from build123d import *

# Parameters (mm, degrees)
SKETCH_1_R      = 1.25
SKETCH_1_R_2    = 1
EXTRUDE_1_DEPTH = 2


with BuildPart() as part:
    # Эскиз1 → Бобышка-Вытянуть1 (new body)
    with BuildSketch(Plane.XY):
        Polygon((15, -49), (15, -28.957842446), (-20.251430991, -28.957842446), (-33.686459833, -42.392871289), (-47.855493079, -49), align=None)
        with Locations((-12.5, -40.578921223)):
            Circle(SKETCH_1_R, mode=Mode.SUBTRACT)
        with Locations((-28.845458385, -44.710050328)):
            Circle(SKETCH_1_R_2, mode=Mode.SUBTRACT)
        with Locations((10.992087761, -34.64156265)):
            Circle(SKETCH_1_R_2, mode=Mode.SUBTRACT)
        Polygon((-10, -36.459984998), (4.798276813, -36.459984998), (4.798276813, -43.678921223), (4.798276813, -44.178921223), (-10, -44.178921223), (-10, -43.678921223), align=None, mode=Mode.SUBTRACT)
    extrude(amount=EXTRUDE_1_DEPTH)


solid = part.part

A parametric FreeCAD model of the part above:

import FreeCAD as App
import Part
import Sketcher
from FreeCAD import Vector
Q = App.Units.Quantity

doc = App.newDocument("Part")
body = doc.addObject("PartDesign::Body", "Body")

sketch1 = doc.addObject("Sketcher::SketchObject", "Sketch")
body.addObject(sketch1)
sketch1.AttachmentSupport = (doc.XY_Plane, [""])
sketch1.MapMode = "FlatFace"
sketch1.addGeometry(Part.LineSegment(Vector(15, -49, 0), Vector(15, -29, 0)), False)
sketch1.addGeometry(Part.LineSegment(Vector(15, -29, 0), Vector(-20.3, -29, 0)), False)
sketch1.addGeometry(Part.LineSegment(Vector(-20.3, -29, 0), Vector(-33.7, -42.4, 0)), False)
sketch1.addGeometry(Part.LineSegment(Vector(-33.7, -42.4, 0), Vector(-47.9, -49, 0)), False)
sketch1.addGeometry(Part.LineSegment(Vector(-47.9, -49, 0), Vector(15, -49, 0)), False)
sketch1.addGeometry(Part.Circle(Vector(-28.8, -44.7, 0), Vector(0, 0, 1), 1), False)
sketch1.addGeometry(Part.Circle(Vector(-12.5, -40.6, 0), Vector(0, 0, 1), 1.2), False)
sketch1.addGeometry(Part.LineSegment(Vector(-10, -44.2, 0), Vector(-10, -36.5, 0)), False)
sketch1.addGeometry(Part.LineSegment(Vector(-10, -36.5, 0), Vector(4.8, -36.5, 0)), False)
sketch1.addGeometry(Part.LineSegment(Vector(4.8, -36.5, 0), Vector(4.8, -44.2, 0)), False)
sketch1.addGeometry(Part.LineSegment(Vector(4.8, -44.2, 0), Vector(-10, -44.2, 0)), False)
sketch1.addGeometry(Part.Circle(Vector(11, -34.6, 0), Vector(0, 0, 1), 1), False)
sketch1.addConstraint(Sketcher.Constraint("Coincident", 0, 2, 1, 1))
sketch1.addConstraint(Sketcher.Constraint("Coincident", 1, 2, 2, 1))
sketch1.addConstraint(Sketcher.Constraint("Coincident", 2, 2, 3, 1))
sketch1.addConstraint(Sketcher.Constraint("Coincident", 3, 2, 4, 1))
sketch1.addConstraint(Sketcher.Constraint("Coincident", 4, 2, 0, 1))
sketch1.addConstraint(Sketcher.Constraint("Coincident", 7, 2, 8, 1))
sketch1.addConstraint(Sketcher.Constraint("Coincident", 8, 2, 9, 1))
sketch1.addConstraint(Sketcher.Constraint("Coincident", 9, 2, 10, 1))
sketch1.addConstraint(Sketcher.Constraint("Coincident", 10, 2, 7, 1))
sketch1.addConstraint(Sketcher.Constraint("Vertical", 0))
sketch1.addConstraint(Sketcher.Constraint("Horizontal", 1))
sketch1.addConstraint(Sketcher.Constraint("Horizontal", 4))
sketch1.addConstraint(Sketcher.Constraint("Vertical", 7))
sketch1.addConstraint(Sketcher.Constraint("Horizontal", 8))
sketch1.addConstraint(Sketcher.Constraint("Vertical", 9))
sketch1.addConstraint(Sketcher.Constraint("Horizontal", 10))
sketch1.addConstraint(Sketcher.Constraint("Equal", 5, 11))
sketch1.addConstraint(Sketcher.Constraint("Diameter", 5, Q("2 mm")))
sketch1.addConstraint(Sketcher.Constraint("Diameter", 6, Q("2.5 mm")))
sketch1.addConstraint(Sketcher.Constraint("Angle", 2, Q("-135 deg")))
sketch1.addConstraint(Sketcher.Constraint("Angle", 3, Q("-155 deg")))
sketch1.addConstraint(Sketcher.Constraint("Distance", 2, Q("19 mm")))
sketch1.addConstraint(Sketcher.Constraint("DistanceX", -1, 1, 0, 2, Q("15 mm")))
sketch1.addConstraint(Sketcher.Constraint("DistanceY", 3, 2, -1, 1, Q("49 mm")))
sketch1.addConstraint(Sketcher.Constraint("DistanceX", 7, 2, -1, 1, Q("10 mm")))
sketch1.addConstraint(Sketcher.Constraint("DistanceX", 6, 3, -1, 1, Q("12.5 mm")))
sketch1.addConstraint(Sketcher.Constraint("DistanceY", 9, 2, 6, 3, Q("3.6 mm")))
sketch1.addConstraint(Sketcher.Constraint("DistanceX", 2, 2, 5, 3, Q("4.841001 mm")))
sketch1.addConstraint(Sketcher.Constraint("Distance", 3, Q("15.633798 mm")))
sketch1.addConstraint(Sketcher.Constraint("DistanceX", 1, 2, 1, 1, Q("35.251431 mm")))
sketch1.addConstraint(Sketcher.Constraint("DistanceX", 8, 1, 8, 2, Q("14.798277 mm")))
sketch1.addConstraint(Sketcher.Constraint("DistanceY", 7, 1, 7, 2, Q("7.718936 mm")))
sketch1.addConstraint(Sketcher.Constraint("DistanceY", 5, 3, -1, 1, Q("44.71005 mm")))
sketch1.addConstraint(Sketcher.Constraint("DistanceY", 6, 3, -1, 1, Q("40.578921 mm")))
sketch1.addConstraint(Sketcher.Constraint("DistanceY", 6, 3, 11, 3, Q("5.937359 mm")))
sketch1.addConstraint(Sketcher.Constraint("DistanceX", 1, 2, 11, 3, Q("31.243519 mm")))
pad1 = doc.addObject("PartDesign::Pad", "Pad")
body.addObject(pad1)
pad1.Profile = sketch1
pad1.Length = 2

doc.recompute()
